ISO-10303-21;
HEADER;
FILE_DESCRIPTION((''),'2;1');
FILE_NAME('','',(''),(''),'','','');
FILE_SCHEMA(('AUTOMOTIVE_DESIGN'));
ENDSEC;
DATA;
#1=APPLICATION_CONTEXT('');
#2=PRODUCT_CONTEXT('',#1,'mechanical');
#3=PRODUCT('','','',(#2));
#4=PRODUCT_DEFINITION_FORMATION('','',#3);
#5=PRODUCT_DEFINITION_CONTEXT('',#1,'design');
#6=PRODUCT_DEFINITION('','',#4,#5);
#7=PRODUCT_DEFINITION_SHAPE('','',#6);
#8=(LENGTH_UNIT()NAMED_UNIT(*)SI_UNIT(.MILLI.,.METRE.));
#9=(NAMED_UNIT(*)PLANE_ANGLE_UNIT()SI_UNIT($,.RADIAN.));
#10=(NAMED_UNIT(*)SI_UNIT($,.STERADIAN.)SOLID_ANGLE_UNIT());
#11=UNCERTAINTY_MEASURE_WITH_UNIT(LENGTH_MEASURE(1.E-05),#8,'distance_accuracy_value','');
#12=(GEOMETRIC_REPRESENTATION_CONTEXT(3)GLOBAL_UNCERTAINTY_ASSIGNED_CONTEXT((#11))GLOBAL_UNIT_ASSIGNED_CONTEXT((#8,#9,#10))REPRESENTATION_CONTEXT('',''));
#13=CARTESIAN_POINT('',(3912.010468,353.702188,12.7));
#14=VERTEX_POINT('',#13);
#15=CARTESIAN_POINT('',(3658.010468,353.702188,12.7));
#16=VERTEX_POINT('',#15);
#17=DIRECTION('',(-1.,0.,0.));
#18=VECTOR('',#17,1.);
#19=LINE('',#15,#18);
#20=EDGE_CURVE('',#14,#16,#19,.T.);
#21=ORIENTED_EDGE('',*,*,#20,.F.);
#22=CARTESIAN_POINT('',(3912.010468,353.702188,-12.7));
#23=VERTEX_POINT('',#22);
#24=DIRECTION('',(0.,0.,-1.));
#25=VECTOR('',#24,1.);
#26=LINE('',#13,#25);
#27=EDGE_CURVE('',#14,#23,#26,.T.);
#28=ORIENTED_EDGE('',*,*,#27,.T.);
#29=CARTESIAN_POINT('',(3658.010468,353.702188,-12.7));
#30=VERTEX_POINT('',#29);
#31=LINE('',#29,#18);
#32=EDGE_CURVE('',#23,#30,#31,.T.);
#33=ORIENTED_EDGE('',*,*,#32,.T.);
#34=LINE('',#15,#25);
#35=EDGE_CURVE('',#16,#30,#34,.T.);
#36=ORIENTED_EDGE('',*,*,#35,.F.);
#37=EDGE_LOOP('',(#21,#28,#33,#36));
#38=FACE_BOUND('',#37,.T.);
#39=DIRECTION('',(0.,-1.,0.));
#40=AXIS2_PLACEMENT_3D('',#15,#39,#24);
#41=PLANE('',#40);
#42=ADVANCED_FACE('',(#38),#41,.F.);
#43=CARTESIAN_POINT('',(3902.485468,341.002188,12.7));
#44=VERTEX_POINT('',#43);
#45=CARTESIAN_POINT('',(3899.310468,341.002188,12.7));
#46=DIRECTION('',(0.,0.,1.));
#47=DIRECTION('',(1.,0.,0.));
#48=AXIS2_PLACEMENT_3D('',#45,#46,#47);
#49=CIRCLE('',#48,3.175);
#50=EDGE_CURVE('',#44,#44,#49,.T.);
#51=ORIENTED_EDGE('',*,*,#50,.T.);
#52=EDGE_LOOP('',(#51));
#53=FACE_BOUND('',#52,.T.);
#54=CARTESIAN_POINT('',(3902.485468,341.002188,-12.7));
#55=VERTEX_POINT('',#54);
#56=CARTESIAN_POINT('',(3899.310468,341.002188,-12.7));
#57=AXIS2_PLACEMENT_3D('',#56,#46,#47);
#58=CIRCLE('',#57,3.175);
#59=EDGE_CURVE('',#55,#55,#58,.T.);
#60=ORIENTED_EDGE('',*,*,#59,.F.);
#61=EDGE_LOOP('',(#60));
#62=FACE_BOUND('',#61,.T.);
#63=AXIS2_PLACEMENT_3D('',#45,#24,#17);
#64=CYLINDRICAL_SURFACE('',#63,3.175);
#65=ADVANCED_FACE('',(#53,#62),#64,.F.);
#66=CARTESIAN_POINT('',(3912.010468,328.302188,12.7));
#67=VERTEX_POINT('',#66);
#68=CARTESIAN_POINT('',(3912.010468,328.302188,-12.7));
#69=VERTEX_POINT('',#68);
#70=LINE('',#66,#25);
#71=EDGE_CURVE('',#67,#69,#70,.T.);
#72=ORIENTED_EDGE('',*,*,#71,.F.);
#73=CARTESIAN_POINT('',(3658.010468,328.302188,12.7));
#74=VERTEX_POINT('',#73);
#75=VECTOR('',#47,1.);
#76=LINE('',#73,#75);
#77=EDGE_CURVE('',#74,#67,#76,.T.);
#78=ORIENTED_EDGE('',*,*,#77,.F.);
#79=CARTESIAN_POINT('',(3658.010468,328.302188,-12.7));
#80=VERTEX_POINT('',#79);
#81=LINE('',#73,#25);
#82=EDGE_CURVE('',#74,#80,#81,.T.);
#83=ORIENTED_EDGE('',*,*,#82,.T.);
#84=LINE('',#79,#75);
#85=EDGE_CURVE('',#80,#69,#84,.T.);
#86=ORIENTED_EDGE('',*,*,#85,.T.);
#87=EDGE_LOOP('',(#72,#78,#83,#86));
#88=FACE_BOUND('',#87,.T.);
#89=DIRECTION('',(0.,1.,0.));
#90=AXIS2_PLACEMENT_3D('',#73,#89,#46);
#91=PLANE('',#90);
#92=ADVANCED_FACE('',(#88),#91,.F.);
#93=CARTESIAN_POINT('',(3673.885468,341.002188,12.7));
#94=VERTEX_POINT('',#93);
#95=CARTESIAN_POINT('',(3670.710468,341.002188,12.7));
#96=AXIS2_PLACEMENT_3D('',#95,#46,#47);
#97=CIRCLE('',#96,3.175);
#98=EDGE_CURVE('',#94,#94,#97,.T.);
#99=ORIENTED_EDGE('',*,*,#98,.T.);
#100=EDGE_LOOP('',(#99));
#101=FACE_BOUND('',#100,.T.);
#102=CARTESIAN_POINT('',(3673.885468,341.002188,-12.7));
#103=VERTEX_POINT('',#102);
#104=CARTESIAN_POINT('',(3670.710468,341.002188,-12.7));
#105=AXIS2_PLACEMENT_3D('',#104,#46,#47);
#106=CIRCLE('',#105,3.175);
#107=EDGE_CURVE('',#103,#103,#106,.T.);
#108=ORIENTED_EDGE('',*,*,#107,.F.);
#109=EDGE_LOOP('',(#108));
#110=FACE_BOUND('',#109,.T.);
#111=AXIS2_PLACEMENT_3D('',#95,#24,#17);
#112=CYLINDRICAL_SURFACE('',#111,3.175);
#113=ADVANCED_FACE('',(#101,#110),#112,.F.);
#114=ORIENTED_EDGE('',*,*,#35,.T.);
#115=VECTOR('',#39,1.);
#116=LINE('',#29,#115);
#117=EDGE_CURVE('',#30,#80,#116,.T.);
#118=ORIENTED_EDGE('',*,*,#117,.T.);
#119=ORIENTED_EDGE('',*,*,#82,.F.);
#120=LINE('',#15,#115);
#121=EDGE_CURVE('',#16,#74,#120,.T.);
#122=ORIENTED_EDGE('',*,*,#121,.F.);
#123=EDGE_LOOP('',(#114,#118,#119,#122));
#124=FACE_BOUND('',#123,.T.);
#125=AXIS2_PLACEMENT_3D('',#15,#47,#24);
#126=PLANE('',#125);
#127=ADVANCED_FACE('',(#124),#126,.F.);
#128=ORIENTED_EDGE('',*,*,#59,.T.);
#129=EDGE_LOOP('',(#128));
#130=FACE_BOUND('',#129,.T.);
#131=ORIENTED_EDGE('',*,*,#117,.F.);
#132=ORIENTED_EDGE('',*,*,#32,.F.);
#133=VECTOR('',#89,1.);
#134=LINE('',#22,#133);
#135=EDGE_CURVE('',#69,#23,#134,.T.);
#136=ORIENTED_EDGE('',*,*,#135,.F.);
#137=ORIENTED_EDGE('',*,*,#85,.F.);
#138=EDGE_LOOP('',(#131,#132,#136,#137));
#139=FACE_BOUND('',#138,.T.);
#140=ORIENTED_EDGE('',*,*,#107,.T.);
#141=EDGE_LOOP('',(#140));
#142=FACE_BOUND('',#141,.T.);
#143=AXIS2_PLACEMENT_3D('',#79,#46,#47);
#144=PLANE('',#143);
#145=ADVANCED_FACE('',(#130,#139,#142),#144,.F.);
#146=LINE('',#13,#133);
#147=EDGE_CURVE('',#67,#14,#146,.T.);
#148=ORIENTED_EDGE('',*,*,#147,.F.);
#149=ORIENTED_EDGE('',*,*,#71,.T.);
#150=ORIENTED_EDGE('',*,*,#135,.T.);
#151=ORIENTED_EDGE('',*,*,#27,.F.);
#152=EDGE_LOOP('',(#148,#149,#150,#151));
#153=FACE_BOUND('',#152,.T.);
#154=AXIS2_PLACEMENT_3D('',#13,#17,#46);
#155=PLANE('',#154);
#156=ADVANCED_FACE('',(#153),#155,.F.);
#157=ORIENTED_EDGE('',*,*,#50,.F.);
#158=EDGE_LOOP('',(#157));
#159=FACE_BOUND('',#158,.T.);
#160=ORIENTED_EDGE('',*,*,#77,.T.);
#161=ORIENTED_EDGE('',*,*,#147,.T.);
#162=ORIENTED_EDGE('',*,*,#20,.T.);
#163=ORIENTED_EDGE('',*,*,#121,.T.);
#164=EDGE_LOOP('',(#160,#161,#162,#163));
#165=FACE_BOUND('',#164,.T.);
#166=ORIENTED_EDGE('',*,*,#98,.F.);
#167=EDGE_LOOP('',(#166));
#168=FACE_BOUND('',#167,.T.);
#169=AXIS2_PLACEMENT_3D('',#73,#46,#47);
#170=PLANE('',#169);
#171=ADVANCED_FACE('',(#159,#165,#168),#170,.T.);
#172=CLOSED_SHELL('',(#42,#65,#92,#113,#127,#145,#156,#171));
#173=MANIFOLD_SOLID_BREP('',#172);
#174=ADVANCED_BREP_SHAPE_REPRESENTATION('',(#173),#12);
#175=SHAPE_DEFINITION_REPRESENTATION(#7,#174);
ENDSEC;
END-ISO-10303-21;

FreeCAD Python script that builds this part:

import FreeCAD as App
import Part
import Sketcher
Q = App.Units.Quantity

doc = App.newDocument("Part")
body = doc.addObject("PartDesign::Body", "Body")

# Sketch on XY plane
sketch1 = doc.addObject("Sketcher::SketchObject", "Sketch")
body.addObject(sketch1)
sketch1.AttachmentSupport = (doc.XY_Plane, [""])
sketch1.MapMode = "FlatFace"
sketch1.addGeometry([
    Part.LineSegment(App.Vector(3658, 353.7, 0), App.Vector(3658, 328.3, 0)),  # 0
    Part.LineSegment(App.Vector(3658, 328.3, 0), App.Vector(3912, 328.3, 0)),  # 1
    Part.LineSegment(App.Vector(3912, 328.3, 0), App.Vector(3912, 353.7, 0)),  # 2
    Part.LineSegment(App.Vector(3912, 353.7, 0), App.Vector(3658, 353.7, 0)),  # 3
    Part.Circle(App.Vector(3670.7, 341, 0), App.Vector(0, 0, 1), 3.2),  # 4
    Part.Circle(App.Vector(3899.3, 341, 0), App.Vector(0, 0, 1), 3.2),  # 5
], False)
sketch1.addConstraint([
    Sketcher.Constraint("Coincident", 0, 2, 1, 1),
    Sketcher.Constraint("Coincident", 1, 2, 2, 1),
    Sketcher.Constraint("Coincident", 2, 2, 3, 1),
    Sketcher.Constraint("Coincident", 3, 2, 0, 1),
    Sketcher.Constraint("Vertical", 0),
    Sketcher.Constraint("Horizontal", 1),
    Sketcher.Constraint("Vertical", 2),
    Sketcher.Constraint("Horizontal", 3),
    Sketcher.Constraint("Equal", 4, 5),
    Sketcher.Constraint("Horizontal", 4, 3, 5, 3),
    Sketcher.Constraint("Diameter", 4, Q("0.25 in")),
    Sketcher.Constraint("DistanceX", 1, 1, 1, 2, Q("10 in")),
    Sketcher.Constraint("DistanceY", 0, 2, 0, 1, Q("1 in")),
    Sketcher.Constraint("DistanceX", 4, 3, 5, 3, Q("9 in")),
    Sketcher.Constraint("DistanceX", 0, 2, 4, 3, Q("0.5 in")),
    Sketcher.Constraint("DistanceY", 0, 2, 4, 3, Q("0.5 in")),
    Sketcher.Constraint("DistanceY", -1, 1, 4, 3, Q("341.002188 mm")),
    Sketcher.Constraint("DistanceX", -1, 1, 4, 3, Q("3670.710468 mm")),
])
pad1 = doc.addObject("PartDesign::Pad", "Pad")
body.addObject(pad1)
pad1.Profile = sketch1
pad1.Length = Q("1 in")
pad1.Midplane = True

doc.recompute()
